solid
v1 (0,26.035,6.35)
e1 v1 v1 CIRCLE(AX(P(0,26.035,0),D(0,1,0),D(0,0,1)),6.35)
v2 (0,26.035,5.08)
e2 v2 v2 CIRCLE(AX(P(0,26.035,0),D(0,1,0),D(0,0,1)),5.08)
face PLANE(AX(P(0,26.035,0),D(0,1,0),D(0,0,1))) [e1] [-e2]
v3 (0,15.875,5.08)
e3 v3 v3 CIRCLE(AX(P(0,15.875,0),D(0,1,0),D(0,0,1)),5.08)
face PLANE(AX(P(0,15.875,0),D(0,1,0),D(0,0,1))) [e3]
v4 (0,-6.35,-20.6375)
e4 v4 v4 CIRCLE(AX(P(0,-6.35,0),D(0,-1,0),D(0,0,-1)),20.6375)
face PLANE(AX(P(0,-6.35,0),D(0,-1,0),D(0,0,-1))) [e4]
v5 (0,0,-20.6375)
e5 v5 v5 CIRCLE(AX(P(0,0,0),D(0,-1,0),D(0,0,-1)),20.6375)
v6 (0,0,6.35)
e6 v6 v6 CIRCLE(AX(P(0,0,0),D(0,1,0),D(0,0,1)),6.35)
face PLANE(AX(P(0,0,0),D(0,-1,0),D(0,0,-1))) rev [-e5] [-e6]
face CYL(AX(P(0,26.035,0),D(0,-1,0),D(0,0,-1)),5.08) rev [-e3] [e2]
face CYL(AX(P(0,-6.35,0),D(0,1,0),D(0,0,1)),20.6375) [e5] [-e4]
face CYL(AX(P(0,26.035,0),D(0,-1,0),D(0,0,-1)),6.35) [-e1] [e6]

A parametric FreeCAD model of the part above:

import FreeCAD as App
import Part
import Sketcher
Q = App.Units.Quantity

doc = App.newDocument("Part")
body = doc.addObject("PartDesign::Body", "Body")

# Sketch on XZ plane
sketch1 = doc.addObject("Sketcher::SketchObject", "Sketch")
body.addObject(sketch1)
sketch1.AttachmentSupport = (doc.XZ_Plane, [""])
sketch1.MapMode = "FlatFace"
sketch1.addGeometry(Part.Circle(App.Vector(0, 0, 0), App.Vector(0, 0, 1), 6), False)
sketch1.addGeometry(Part.Circle(App.Vector(0, 0, 0), App.Vector(0, 0, 1), 5), False)
sketch1.addConstraint(Sketcher.Constraint("Coincident", 0, 3, -1, 1))
sketch1.addConstraint(Sketcher.Constraint("Coincident", 1, 3, -1, 1))
sketch1.addConstraint(Sketcher.Constraint("Diameter", 0, Q("0.5 in")))
sketch1.addConstraint(Sketcher.Constraint("Diameter", 1, Q("0.4 in")))
pad1 = doc.addObject("PartDesign::Pad", "Pad")
body.addObject(pad1)
pad1.Profile = sketch1
pad1.Length = Q("1.025 in")
pad1.Reversed = True

# Sketch on XZ plane
sketch2 = doc.addObject("Sketcher::SketchObject", "Sketch001")
body.addObject(sketch2)
sketch2.AttachmentSupport = (doc.XZ_Plane, [""])
sketch2.MapMode = "FlatFace"
sketch2.addGeometry(Part.Circle(App.Vector(0, 0, 0), App.Vector(0, 0, 1), 21), False)
sketch2.addConstraint(Sketcher.Constraint("Coincident", 0, 3, -1, 1))
sketch2.addConstraint(Sketcher.Constraint("Diameter", 0, Q("1.625 in")))
pad2 = doc.addObject("PartDesign::Pad", "Pad001")
body.addObject(pad2)
pad2.Profile = sketch2
pad2.Length = Q("0.25 in")

# Sketch on XZ plane
sketch3 = doc.addObject("Sketcher::SketchObject", "Sketch002")
body.addObject(sketch3)
sketch3.AttachmentSupport = (doc.XZ_Plane, [""])
sketch3.MapMode = "FlatFace"
sketch3.addGeometry(Part.Circle(App.Vector(0, 0, 0), App.Vector(0, 0, 1), 5), False)
sketch3.addConstraint(Sketcher.Constraint("Coincident", 0, 3, -1, 1))
sketch3.addConstraint(Sketcher.Constraint("Diameter", 0, Q("0.4 in")))
pad3 = doc.addObject("PartDesign::Pad", "Pad002")
body.addObject(pad3)
pad3.Profile = sketch3
pad3.Length = Q("0.625 in")
pad3.Reversed = True

doc.recompute()
